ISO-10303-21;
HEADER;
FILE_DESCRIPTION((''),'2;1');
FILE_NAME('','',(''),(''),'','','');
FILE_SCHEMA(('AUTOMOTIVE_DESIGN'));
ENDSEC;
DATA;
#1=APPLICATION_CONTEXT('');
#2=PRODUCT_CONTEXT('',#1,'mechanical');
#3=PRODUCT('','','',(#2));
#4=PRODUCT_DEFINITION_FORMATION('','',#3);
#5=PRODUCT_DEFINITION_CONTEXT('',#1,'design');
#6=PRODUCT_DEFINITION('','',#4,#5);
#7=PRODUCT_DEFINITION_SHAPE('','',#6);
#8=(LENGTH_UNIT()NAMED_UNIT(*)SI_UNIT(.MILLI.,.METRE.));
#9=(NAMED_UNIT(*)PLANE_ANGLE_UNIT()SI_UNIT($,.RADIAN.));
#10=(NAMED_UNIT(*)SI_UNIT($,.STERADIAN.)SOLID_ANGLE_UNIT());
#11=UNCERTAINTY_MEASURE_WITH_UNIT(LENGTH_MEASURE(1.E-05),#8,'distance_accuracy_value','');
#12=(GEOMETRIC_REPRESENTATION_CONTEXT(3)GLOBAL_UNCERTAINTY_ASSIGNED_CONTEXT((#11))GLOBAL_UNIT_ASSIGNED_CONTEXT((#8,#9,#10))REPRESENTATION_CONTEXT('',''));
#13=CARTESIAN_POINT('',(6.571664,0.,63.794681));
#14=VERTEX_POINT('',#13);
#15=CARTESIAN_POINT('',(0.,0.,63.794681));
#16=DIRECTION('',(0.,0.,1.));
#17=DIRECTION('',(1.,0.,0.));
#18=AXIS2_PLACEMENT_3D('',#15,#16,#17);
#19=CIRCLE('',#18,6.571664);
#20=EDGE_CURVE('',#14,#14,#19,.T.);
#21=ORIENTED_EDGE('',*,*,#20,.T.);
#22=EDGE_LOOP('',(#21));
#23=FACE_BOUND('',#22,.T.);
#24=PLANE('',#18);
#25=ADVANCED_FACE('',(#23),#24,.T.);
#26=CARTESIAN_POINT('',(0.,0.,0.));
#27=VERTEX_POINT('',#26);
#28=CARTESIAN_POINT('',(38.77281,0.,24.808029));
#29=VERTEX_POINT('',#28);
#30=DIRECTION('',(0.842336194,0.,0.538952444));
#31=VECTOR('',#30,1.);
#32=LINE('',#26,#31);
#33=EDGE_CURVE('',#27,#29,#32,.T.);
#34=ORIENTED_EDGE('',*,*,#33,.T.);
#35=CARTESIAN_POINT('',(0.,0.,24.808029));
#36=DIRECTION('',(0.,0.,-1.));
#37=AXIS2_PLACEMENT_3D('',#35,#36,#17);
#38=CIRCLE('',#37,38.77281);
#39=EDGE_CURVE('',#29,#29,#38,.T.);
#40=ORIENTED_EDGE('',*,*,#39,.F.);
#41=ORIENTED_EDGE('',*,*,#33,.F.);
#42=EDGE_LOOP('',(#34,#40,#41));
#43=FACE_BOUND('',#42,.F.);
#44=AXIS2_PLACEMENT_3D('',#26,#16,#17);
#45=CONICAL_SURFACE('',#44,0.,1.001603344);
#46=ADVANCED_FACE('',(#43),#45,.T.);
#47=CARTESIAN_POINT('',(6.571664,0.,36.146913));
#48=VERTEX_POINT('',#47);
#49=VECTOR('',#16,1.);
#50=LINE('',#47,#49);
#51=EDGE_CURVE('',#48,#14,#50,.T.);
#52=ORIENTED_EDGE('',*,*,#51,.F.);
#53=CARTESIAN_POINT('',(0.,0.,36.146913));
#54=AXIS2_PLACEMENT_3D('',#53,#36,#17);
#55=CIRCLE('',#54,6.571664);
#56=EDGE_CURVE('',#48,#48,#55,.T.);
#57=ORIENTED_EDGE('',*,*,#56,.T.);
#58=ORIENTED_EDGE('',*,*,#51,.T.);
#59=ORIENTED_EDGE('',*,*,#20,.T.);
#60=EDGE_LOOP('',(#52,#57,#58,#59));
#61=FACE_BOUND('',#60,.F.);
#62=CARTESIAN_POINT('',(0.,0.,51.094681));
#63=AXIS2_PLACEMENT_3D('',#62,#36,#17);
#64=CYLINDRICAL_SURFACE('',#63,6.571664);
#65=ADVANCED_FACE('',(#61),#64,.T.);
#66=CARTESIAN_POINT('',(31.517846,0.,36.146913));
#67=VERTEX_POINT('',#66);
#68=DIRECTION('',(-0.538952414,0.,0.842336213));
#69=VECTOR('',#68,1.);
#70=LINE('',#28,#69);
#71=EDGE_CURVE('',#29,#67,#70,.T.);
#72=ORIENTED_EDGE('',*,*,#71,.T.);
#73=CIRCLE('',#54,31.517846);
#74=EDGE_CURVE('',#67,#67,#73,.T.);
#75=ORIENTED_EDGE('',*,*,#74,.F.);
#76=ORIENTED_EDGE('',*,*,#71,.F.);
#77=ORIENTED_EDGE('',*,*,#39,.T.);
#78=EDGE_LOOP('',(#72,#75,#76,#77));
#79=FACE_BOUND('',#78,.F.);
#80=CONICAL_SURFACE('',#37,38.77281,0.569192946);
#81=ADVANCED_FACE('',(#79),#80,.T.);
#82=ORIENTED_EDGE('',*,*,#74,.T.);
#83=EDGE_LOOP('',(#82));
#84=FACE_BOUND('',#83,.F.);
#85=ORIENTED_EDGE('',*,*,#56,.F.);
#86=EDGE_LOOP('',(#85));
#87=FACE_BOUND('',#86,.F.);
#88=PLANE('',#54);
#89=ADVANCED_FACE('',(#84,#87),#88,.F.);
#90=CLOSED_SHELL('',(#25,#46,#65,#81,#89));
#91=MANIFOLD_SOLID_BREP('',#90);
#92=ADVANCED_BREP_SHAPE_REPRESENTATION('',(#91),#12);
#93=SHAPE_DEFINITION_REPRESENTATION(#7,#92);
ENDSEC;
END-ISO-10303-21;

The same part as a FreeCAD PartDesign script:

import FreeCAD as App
import Part
import Sketcher
Q = App.Units.Quantity


def add_polygon(sketch, points):
    """Adds a closed chain of lines whose ends are joined by coincident constraints."""
    first, n = sketch.GeometryCount, len(points)
    for a, b in zip(points, points[1:] + points[:1]):
        sketch.addGeometry(Part.LineSegment(App.Vector(*a, 0), App.Vector(*b, 0)), False)
    for i in range(n):
        sketch.addConstraint(Sketcher.Constraint("Coincident", first + i, 2, first + (i + 1) % n, 1))

doc = App.newDocument("Part")
body = doc.addObject("PartDesign::Body", "Body")

# Sketch on XZ plane
sketch1 = doc.addObject("Sketcher::SketchObject", "Sketch")
body.addObject(sketch1)
sketch1.AttachmentSupport = (doc.XZ_Plane, [""])
sketch1.MapMode = "FlatFace"
add_polygon(sketch1, [(0, 51.094681), (0, 0), (38.77281, 24.808029), (31.517846, 36.146913), (6.571664, 36.146913), (6.571664, 51.094681)])  # lines 0-5
sketch1.addConstraint(Sketcher.Constraint("Vertical", 0))
sketch1.addConstraint(Sketcher.Constraint("Horizontal", 3))
sketch1.addConstraint(Sketcher.Constraint("Vertical", 4))
sketch1.addConstraint(Sketcher.Constraint("Horizontal", 5))
sketch1.addConstraint(Sketcher.Constraint("Coincident", 0, 2, -1, 1))
sketch1.addConstraint(Sketcher.Constraint("Perpendicular", 1, 2))
sketch1.addConstraint(Sketcher.Constraint("DistanceY", 0, 2, 0, 1, Q("51.094681 mm")))
sketch1.addConstraint(Sketcher.Constraint("DistanceY", 4, 1, 4, 2, Q("14.947768 mm")))
sketch1.addConstraint(Sketcher.Constraint("Distance", 1, Q("46.030089 mm")))
sketch1.addConstraint(Sketcher.Constraint("DistanceX", 3, 2, 3, 1, Q("24.946182 mm")))
sketch1.addConstraint(Sketcher.Constraint("DistanceX", 5, 2, 5, 1, Q("6.571664 mm")))
revolution = doc.addObject("PartDesign::Revolution", "Revolution")
body.addObject(revolution)
revolution.Profile = sketch1
revolution.ReferenceAxis = (sketch1, ["V_Axis"])
revolution.Angle = 360

# Sketch on XY plane
sketch2 = doc.addObject("Sketcher::SketchObject", "Sketch001")
body.addObject(sketch2)
sketch2.AttachmentSupport = (doc.XY_Plane, [""])
sketch2.MapMode = "FlatFace"
sketch2.AttachmentOffset = App.Placement(App.Vector(0, 0, 51.094681), App.Rotation())
sketch2.addGeometry(Part.Circle(App.Vector(0, 0, 0), App.Vector(0, 0, 1), 6.571664), False)
sketch2.addConstraint(Sketcher.Constraint("Coincident", 0, 3, -1, 1))
sketch2.addConstraint(Sketcher.Constraint("Diameter", 0, Q("13.143328 mm")))
pad1 = doc.addObject("PartDesign::Pad", "Pad")
body.addObject(pad1)
pad1.Profile = sketch2
pad1.Length = Q("0.5 in")

doc.recompute()
